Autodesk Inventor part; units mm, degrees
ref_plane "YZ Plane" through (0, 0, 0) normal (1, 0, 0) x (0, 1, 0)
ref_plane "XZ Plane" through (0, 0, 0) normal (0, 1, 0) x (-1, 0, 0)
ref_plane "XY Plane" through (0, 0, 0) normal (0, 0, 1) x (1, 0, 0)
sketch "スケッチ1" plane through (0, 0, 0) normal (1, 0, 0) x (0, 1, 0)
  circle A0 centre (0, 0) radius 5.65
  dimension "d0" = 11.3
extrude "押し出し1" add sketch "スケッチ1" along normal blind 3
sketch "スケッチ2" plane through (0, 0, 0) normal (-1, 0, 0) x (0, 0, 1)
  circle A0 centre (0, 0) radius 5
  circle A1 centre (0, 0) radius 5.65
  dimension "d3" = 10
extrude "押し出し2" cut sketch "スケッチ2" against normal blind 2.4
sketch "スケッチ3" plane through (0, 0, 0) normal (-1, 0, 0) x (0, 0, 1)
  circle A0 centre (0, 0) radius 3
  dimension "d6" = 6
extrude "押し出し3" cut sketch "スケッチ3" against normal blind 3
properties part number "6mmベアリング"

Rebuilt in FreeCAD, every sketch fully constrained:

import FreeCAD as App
import Part
import Sketcher
from FreeCAD import Vector

doc = App.newDocument("Part")
body = doc.addObject("PartDesign::Body", "Body")

# Sketch on YZ plane
sketch1 = doc.addObject("Sketcher::SketchObject", "Sketch")
body.addObject(sketch1)
sketch1.AttachmentSupport = (doc.YZ_Plane, [""])
sketch1.MapMode = "FlatFace"
sketch1.addGeometry(Part.Circle(Vector(0, 0, 0), Vector(0, 0, 1), 6), False)
sketch1.addConstraint([
    Sketcher.Constraint("Coincident", 0, 3, -1, 1),
    Sketcher.Constraint("Diameter", 0, 11.3),
])
pad1 = doc.addObject("PartDesign::Pad", "Pad")
body.addObject(pad1)
pad1.Profile = sketch1
pad1.Length = 3

# Sketch on YZ plane
sketch2 = doc.addObject("Sketcher::SketchObject", "Sketch001")
body.addObject(sketch2)
sketch2.AttachmentSupport = (doc.YZ_Plane, [""])
sketch2.MapMode = "FlatFace"
sketch2.addGeometry([
    Part.Circle(Vector(0, 0, 0), Vector(0, 0, 1), 6),
    Part.Circle(Vector(0, 0, 0), Vector(0, 0, 1), 5),
], False)
sketch2.addConstraint([
    Sketcher.Constraint("Coincident", 0, 3, -1, 1),
    Sketcher.Constraint("Coincident", 1, 3, -1, 1),
    Sketcher.Constraint("Diameter", 1, 10.0),
    Sketcher.Constraint("Diameter", 0, 11.3),
])
pocket1 = doc.addObject("PartDesign::Pocket", "Pocket")
body.addObject(pocket1)
pocket1.Profile = sketch2
pocket1.Length = 2.4
pocket1.Reversed = True

# Sketch on YZ plane
sketch3 = doc.addObject("Sketcher::SketchObject", "Sketch002")
body.addObject(sketch3)
sketch3.AttachmentSupport = (doc.YZ_Plane, [""])
sketch3.MapMode = "FlatFace"
sketch3.addGeometry(Part.Circle(Vector(0, 0, 0), Vector(0, 0, 1), 3), False)
sketch3.addConstraint([
    Sketcher.Constraint("Coincident", 0, 3, -1, 1),
    Sketcher.Constraint("Diameter", 0, 6.0),
])
pocket2 = doc.addObject("PartDesign::Pocket", "Pocket001")
body.addObject(pocket2)
pocket2.Profile = sketch3
pocket2.Length = 3
pocket2.Reversed = True

doc.recompute()
